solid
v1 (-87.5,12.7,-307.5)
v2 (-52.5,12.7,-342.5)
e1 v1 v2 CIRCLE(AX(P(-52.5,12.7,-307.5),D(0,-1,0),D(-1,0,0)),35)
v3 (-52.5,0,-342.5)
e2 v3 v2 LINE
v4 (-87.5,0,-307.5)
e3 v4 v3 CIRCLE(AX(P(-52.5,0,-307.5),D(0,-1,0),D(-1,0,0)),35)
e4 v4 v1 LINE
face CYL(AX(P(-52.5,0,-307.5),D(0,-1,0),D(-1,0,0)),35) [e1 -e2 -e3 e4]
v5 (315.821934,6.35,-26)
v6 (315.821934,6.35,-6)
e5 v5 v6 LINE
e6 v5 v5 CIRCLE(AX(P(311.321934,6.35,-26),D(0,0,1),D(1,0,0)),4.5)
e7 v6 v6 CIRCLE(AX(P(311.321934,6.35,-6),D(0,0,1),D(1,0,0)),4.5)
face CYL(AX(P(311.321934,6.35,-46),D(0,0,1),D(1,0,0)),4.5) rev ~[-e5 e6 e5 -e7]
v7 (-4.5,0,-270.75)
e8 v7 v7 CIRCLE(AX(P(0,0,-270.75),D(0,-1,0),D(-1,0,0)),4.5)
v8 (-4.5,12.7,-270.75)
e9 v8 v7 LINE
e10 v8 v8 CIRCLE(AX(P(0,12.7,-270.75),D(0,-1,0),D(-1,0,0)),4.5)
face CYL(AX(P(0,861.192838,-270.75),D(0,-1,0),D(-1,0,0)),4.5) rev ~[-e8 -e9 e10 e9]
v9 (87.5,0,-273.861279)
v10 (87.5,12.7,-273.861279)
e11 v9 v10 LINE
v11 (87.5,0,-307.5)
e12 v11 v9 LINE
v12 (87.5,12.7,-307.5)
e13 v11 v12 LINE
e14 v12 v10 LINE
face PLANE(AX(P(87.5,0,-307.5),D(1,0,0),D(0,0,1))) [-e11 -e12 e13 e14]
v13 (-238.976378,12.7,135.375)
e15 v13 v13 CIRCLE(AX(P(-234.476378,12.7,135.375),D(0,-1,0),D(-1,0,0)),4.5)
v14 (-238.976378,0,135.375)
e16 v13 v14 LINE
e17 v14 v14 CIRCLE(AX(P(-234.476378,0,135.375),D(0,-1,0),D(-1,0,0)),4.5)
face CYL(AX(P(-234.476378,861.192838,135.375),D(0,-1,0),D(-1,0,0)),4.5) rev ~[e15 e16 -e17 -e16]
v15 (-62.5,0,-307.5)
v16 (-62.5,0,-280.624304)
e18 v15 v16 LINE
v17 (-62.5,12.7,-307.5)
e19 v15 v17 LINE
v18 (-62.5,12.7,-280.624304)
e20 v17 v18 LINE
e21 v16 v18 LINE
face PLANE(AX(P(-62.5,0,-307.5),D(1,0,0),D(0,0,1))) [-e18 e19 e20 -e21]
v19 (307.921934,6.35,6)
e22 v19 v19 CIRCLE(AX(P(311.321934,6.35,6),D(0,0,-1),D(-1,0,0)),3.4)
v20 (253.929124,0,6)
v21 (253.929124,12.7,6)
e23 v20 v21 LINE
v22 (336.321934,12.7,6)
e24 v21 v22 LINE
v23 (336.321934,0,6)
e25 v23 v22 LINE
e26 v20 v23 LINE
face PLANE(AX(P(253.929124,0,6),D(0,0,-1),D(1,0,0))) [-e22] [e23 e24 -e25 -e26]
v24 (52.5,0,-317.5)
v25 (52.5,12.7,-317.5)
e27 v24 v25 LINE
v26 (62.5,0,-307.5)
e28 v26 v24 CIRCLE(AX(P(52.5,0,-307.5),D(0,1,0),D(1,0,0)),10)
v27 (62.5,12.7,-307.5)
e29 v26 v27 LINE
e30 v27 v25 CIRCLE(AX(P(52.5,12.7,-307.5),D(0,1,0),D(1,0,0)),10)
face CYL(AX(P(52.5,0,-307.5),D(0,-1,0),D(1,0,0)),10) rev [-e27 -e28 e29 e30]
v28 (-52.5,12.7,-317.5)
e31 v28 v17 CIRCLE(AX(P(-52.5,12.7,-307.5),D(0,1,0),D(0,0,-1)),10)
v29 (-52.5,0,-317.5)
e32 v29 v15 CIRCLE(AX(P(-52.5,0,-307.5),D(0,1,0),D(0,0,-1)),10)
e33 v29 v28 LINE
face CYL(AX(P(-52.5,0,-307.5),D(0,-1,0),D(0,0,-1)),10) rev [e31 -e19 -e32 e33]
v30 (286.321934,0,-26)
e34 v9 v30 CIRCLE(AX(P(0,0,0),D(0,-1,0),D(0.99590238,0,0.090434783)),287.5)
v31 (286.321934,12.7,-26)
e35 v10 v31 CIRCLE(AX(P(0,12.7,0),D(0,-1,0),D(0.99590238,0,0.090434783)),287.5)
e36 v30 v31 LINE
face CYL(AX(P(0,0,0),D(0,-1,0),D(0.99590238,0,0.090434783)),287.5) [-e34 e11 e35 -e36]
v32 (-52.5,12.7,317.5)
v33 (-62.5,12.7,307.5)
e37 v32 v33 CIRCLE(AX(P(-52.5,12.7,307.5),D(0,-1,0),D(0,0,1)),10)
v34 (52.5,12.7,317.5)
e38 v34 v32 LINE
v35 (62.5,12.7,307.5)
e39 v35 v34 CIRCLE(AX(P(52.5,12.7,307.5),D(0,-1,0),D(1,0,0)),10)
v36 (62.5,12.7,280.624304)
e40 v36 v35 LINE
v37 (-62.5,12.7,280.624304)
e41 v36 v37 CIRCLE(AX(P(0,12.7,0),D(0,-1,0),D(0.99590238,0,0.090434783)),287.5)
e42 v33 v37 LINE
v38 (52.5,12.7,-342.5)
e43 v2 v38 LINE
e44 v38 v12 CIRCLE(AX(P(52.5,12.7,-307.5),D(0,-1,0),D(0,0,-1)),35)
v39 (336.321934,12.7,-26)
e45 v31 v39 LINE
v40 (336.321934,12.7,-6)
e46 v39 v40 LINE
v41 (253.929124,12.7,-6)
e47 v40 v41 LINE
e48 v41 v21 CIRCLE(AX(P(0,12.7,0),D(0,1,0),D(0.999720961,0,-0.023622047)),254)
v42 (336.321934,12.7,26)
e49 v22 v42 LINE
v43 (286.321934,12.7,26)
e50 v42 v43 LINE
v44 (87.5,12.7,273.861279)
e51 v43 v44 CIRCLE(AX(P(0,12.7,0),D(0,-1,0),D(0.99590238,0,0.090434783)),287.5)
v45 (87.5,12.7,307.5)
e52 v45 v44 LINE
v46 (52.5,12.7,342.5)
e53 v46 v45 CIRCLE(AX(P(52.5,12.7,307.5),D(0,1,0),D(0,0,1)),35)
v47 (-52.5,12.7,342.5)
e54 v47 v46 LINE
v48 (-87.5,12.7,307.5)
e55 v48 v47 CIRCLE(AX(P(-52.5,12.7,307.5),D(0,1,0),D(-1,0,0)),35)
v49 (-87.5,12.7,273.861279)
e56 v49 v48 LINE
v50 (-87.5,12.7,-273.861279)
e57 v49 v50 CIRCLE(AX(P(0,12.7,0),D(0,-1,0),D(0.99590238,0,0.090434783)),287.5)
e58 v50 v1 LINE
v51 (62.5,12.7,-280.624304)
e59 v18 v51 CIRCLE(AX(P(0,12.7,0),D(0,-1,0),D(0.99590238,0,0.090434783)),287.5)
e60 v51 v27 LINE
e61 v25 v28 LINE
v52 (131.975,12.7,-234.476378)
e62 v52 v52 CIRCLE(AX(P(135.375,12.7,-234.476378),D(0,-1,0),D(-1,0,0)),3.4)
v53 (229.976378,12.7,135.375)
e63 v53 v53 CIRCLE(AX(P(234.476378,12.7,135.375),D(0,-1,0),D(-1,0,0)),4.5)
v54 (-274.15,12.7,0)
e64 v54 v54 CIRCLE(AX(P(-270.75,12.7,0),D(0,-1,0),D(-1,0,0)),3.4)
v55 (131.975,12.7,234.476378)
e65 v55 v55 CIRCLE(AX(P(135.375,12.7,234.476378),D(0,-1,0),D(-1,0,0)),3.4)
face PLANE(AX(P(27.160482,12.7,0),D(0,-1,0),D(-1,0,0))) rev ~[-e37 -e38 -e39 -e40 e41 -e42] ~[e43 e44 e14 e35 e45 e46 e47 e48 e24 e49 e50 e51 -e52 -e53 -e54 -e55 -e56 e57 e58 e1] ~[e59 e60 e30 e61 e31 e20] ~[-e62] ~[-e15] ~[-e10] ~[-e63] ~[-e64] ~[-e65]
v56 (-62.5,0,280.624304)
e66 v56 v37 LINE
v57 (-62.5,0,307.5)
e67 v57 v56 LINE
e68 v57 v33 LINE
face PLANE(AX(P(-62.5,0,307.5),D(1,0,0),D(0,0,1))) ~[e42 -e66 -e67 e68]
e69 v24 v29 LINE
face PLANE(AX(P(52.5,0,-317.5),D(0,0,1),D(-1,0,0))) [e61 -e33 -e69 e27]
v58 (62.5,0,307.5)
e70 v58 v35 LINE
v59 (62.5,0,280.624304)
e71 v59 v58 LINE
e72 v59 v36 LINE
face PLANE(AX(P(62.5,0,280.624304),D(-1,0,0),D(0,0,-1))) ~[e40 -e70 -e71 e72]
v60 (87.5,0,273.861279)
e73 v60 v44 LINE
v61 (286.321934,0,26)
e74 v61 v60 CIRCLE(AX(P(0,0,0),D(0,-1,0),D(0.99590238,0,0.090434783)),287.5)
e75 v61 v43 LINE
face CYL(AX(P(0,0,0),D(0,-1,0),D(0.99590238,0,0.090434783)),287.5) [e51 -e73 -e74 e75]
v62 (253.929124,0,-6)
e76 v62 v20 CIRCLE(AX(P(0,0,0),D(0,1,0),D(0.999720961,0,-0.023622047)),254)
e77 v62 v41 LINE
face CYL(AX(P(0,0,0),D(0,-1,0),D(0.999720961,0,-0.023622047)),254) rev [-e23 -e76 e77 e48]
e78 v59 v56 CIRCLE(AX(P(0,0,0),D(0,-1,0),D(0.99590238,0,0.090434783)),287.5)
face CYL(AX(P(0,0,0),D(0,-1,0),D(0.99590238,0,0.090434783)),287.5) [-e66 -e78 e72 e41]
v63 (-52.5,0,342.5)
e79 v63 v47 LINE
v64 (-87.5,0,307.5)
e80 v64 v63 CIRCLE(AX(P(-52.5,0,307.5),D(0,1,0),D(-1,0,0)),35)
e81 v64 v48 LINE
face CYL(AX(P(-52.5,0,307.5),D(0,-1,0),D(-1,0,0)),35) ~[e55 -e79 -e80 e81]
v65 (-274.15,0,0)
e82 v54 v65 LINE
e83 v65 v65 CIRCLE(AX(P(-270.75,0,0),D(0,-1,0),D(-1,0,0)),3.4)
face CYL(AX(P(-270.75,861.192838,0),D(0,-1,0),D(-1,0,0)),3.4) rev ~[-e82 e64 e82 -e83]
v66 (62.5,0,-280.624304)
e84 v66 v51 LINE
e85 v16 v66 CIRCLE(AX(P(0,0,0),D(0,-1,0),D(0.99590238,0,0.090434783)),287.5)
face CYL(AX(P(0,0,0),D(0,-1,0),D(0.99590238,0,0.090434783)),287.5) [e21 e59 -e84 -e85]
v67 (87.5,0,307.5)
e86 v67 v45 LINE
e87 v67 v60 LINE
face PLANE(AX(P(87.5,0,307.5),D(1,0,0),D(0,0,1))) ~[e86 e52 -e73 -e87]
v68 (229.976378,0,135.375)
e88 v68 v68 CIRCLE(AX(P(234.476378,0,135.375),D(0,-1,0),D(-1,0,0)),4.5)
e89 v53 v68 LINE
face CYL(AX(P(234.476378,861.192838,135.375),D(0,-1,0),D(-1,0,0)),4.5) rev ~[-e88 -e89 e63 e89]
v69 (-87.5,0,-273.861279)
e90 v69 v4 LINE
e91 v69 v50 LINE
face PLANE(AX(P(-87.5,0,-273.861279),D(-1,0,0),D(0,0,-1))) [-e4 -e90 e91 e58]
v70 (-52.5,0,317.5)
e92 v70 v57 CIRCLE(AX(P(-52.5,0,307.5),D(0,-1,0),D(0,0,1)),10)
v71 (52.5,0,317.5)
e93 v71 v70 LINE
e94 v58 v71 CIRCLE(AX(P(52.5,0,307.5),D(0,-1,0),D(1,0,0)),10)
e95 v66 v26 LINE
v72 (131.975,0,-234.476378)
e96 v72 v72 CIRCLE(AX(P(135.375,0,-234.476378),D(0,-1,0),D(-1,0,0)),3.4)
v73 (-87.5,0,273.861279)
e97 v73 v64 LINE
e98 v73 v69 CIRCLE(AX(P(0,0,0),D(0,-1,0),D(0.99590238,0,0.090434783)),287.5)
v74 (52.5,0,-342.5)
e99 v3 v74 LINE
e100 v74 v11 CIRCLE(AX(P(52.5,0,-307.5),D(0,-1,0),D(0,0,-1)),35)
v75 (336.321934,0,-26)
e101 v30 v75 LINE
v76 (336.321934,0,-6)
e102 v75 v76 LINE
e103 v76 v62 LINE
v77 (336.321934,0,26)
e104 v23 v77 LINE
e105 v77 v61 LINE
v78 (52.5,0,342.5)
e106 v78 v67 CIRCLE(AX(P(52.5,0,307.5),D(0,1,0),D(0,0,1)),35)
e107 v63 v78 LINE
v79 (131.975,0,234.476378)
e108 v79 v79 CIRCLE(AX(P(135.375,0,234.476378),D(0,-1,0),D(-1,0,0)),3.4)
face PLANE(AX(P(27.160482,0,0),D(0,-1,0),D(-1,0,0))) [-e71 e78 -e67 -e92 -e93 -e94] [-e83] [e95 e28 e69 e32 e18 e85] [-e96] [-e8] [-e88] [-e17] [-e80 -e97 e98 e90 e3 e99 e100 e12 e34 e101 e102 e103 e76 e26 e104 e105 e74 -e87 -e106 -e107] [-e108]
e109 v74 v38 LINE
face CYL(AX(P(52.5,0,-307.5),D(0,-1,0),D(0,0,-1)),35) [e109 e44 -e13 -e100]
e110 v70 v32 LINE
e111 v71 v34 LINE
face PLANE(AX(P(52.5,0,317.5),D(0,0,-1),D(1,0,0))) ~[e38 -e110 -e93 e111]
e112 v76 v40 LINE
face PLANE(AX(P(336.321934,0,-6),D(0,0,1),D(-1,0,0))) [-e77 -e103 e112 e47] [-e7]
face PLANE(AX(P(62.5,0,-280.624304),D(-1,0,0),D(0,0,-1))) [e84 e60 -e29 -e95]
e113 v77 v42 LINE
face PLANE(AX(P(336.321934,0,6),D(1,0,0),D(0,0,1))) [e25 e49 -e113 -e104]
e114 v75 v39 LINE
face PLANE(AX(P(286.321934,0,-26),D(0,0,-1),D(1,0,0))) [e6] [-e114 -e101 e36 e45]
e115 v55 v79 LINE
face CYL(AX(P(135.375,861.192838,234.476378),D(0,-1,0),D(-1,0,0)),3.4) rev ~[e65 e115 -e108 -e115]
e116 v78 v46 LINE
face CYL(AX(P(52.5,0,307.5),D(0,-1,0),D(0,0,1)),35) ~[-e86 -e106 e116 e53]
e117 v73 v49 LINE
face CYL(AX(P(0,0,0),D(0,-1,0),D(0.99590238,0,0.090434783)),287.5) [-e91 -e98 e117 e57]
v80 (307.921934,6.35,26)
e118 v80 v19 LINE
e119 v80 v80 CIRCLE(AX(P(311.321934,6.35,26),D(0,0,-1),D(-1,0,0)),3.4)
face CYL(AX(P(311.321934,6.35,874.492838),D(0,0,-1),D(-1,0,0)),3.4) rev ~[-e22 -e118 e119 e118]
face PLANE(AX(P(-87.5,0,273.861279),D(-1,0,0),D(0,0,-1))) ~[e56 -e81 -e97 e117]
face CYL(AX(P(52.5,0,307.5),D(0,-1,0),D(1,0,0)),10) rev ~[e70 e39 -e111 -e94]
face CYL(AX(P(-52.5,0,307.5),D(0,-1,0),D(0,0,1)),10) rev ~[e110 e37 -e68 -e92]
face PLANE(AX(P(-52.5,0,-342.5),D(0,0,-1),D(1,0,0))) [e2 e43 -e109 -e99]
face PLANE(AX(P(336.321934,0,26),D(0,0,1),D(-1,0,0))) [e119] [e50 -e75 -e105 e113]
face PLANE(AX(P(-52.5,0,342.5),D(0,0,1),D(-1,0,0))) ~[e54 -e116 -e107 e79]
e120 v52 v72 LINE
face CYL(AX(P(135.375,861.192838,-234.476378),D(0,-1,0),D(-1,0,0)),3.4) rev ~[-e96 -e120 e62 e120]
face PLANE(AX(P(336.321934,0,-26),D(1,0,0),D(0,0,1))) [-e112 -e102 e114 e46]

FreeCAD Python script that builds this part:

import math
import FreeCAD as App
import Part
import Sketcher

doc = App.newDocument("Part")
body = doc.addObject("PartDesign::Body", "Body")

# Sketch on XZ plane
sketch1 = doc.addObject("Sketcher::SketchObject", "Sketch")
body.addObject(sketch1)
sketch1.AttachmentSupport = (doc.XZ_Plane, [""])
sketch1.MapMode = "FlatFace"
sketch1.addGeometry([
    Part.ArcOfCircle(Part.Circle(App.Vector(0, 0, 0), App.Vector(0, 0, 1), 254), math.radians(1), math.radians(359)),  # 0
    Part.LineSegment(App.Vector(254, -6, 0), App.Vector(336, -6, 0)),  # 1
    Part.LineSegment(App.Vector(336, -6, 0), App.Vector(336, -26, 0)),  # 2
    Part.LineSegment(App.Vector(336, -26, 0), App.Vector(286, -26, 0)),  # 3
    Part.ArcOfCircle(Part.Circle(App.Vector(0, 0, 0), App.Vector(0, 0, 1), 288), math.radians(5), math.radians(355)),  # 4
    Part.LineSegment(App.Vector(286, 26, 0), App.Vector(336, 26, 0)),  # 5
    Part.LineSegment(App.Vector(336, 26, 0), App.Vector(336, 6, 0)),  # 6
    Part.LineSegment(App.Vector(336, 6, 0), App.Vector(254, 6, 0)),  # 7
], False)
sketch1.addConstraint([
    Sketcher.Constraint("Coincident", 0, 2, 1, 1),
    Sketcher.Constraint("Coincident", 1, 2, 2, 1),
    Sketcher.Constraint("Coincident", 2, 2, 3, 1),
    Sketcher.Constraint("Coincident", 3, 2, 4, 2),
    Sketcher.Constraint("Coincident", 4, 1, 5, 1),
    Sketcher.Constraint("Coincident", 5, 2, 6, 1),
    Sketcher.Constraint("Coincident", 6, 2, 7, 1),
    Sketcher.Constraint("Coincident", 7, 2, 0, 1),
    Sketcher.Constraint("Horizontal", 1),
    Sketcher.Constraint("Vertical", 2),
    Sketcher.Constraint("Horizontal", 3),
    Sketcher.Constraint("Horizontal", 5),
    Sketcher.Constraint("Vertical", 6),
    Sketcher.Constraint("Horizontal", 7),
    Sketcher.Constraint("Coincident", 0, 3, -1, 1),
    Sketcher.Constraint("Coincident", 4, 3, -1, 1),
    Sketcher.Constraint("Symmetric", 2, 2, 5, 2, -1),
    Sketcher.Constraint("Vertical", 0, 2, 7, 2),
    Sketcher.Constraint("Radius", 0, 254.0),
    Sketcher.Constraint("Radius", 4, 287.5),
    Sketcher.Constraint("DistanceX", 3, 2, 3, 1, 50.0),
    Sketcher.Constraint("DistanceY", 2, 2, 2, 1, 20.0),
    Sketcher.Constraint("DistanceY", 1, 2, -1, 1, 6.0),
])
pad1 = doc.addObject("PartDesign::Pad", "Pad")
body.addObject(pad1)
pad1.Profile = sketch1
pad1.Length = 12.7
pad1.Reversed = True

# Sketch on XZ plane
sketch2 = doc.addObject("Sketcher::SketchObject", "Sketch001")
body.addObject(sketch2)
sketch2.AttachmentSupport = (doc.XZ_Plane, [""])
sketch2.MapMode = "FlatFace"
sketch2.AttachmentOffset = App.Placement(App.Vector(0, 0, -12.7), App.Rotation())
sketch2.addGeometry([
    Part.Circle(App.Vector(135.4, 234.5, 0), App.Vector(0, 0, 1), 3.4),
    Part.Circle(App.Vector(-270.8, 0, 0), App.Vector(0, 0, 1), 3.4),
    Part.Circle(App.Vector(135.4, -234.5, 0), App.Vector(0, 0, 1), 3.4),
], False)
sketch2.addConstraint([
    Sketcher.Constraint("Equal", 0, 1),
    Sketcher.Constraint("Equal", 1, 2),
    Sketcher.Constraint("Symmetric", 0, 3, 2, 3, -1),
    Sketcher.Constraint("PointOnObject", 1, 3, -1),
    Sketcher.Constraint("Diameter", 0, 6.8),
    Sketcher.Constraint("DistanceX", 1, 3, -1, 1, 270.75),
    Sketcher.Constraint("DistanceX", -1, 1, 0, 3, 135.375),
    Sketcher.Constraint("DistanceY", -1, 1, 0, 3, 234.476378),
])
doc.recompute()
hole = doc.addObject("PartDesign::Hole", "Hole")
body.addObject(hole)
hole.Profile = sketch2
hole.ThreadType = "None"
hole.Diameter = 6.8
hole.DepthType = "ThroughAll"
hole.Reversed = True

# Sketch on XZ plane
sketch3 = doc.addObject("Sketcher::SketchObject", "Sketch002")
body.addObject(sketch3)
sketch3.AttachmentSupport = (doc.XZ_Plane, [""])
sketch3.MapMode = "FlatFace"
sketch3.AttachmentOffset = App.Placement(App.Vector(0, 0, -12.7), App.Rotation())
sketch3.addGeometry([
    Part.Circle(App.Vector(0, -270.8, 0), App.Vector(0, 0, 1), 4.5),
    Part.Circle(App.Vector(234.5, 135.4, 0), App.Vector(0, 0, 1), 4.5),
    Part.Circle(App.Vector(-234.5, 135.4, 0), App.Vector(0, 0, 1), 4.5),
], False)
sketch3.addConstraint([
    Sketcher.Constraint("Equal", 0, 1),
    Sketcher.Constraint("Equal", 1, 2),
    Sketcher.Constraint("Symmetric", 1, 3, 2, 3, -2),
    Sketcher.Constraint("PointOnObject", 0, 3, -2),
    Sketcher.Constraint("Diameter", 0, 9.0),
    Sketcher.Constraint("DistanceY", 0, 3, -1, 1, 270.75),
    Sketcher.Constraint("DistanceY", -1, 1, 1, 3, 135.375),
    Sketcher.Constraint("DistanceX", -1, 1, 1, 3, 234.476378),
])
doc.recompute()
hole2 = doc.addObject("PartDesign::Hole", "Hole001")
body.addObject(hole2)
hole2.Profile = sketch3
hole2.ThreadType = "None"
hole2.Diameter = 9
hole2.DepthType = "ThroughAll"
hole2.Reversed = True

# Sketch on XY plane
sketch4 = doc.addObject("Sketcher::SketchObject", "Sketch003")
body.addObject(sketch4)
sketch4.AttachmentSupport = (doc.XY_Plane, [""])
sketch4.MapMode = "FlatFace"
sketch4.AttachmentOffset = App.Placement(App.Vector(0, 0, -26), App.Rotation())
sketch4.addGeometry(Part.Circle(App.Vector(311.3, 6.3, 0), App.Vector(0, 0, 1), 4.5), False)
sketch4.addConstraint([
    Sketcher.Constraint("Diameter", 0, 9.0),
    Sketcher.Constraint("DistanceY", -1, 1, 0, 3, 6.35),
    Sketcher.Constraint("DistanceX", -1, 1, 0, 3, 311.321934),
])
doc.recompute()
hole3 = doc.addObject("PartDesign::Hole", "Hole002")
body.addObject(hole3)
hole3.Profile = sketch4
hole3.ThreadType = "None"
hole3.Diameter = 9
hole3.DepthType = "Dimension"
hole3.Depth = 20
hole3.DrillPoint = "Flat"
hole3.Reversed = True

# Sketch on XY plane
sketch5 = doc.addObject("Sketcher::SketchObject", "Sketch004")
body.addObject(sketch5)
sketch5.AttachmentSupport = (doc.XY_Plane, [""])
sketch5.MapMode = "FlatFace"
sketch5.AttachmentOffset = App.Placement(App.Vector(0, 0, 26), App.Rotation())
sketch5.addGeometry(Part.Circle(App.Vector(311.3, 6.3, 0), App.Vector(0, 0, 1), 3.4), False)
sketch5.addConstraint([
    Sketcher.Constraint("Diameter", 0, 6.8),
    Sketcher.Constraint("DistanceY", -1, 1, 0, 3, 6.35),
    Sketcher.Constraint("DistanceX", -1, 1, 0, 3, 311.321934),
])
doc.recompute()
hole4 = doc.addObject("PartDesign::Hole", "Hole003")
body.addObject(hole4)
hole4.Profile = sketch5
hole4.ThreadType = "None"
hole4.Diameter = 6.8
hole4.DepthType = "ThroughAll"

# Sketch on XZ plane
sketch6 = doc.addObject("Sketcher::SketchObject", "Sketch005")
body.addObject(sketch6)
sketch6.AttachmentSupport = (doc.XZ_Plane, [""])
sketch6.MapMode = "FlatFace"
sketch6.addGeometry([
    Part.LineSegment(App.Vector(52, -342, 0), App.Vector(-52, -342, 0)),  # 0
    Part.ArcOfCircle(Part.Circle(App.Vector(-53, -308, 0), App.Vector(0, 0, 1), 35), math.radians(180), math.radians(270)),  # 1
    Part.LineSegment(App.Vector(-88, -308, 0), App.Vector(-88, -274, 0)),  # 2
    Part.ArcOfCircle(Part.Circle(App.Vector(0, 0, 0), App.Vector(0, 0, 1), 288), math.radians(-107.72), math.radians(-102.56)),  # 3
    Part.LineSegment(App.Vector(-62, -281, 0), App.Vector(-62, -308, 0)),  # 4
    Part.ArcOfCircle(Part.Circle(App.Vector(-52, -308, 0), App.Vector(0, 0, 1), 10), math.radians(180), math.radians(270)),  # 5
    Part.LineSegment(App.Vector(-52, -318, 0), App.Vector(52, -318, 0)),  # 6
    Part.ArcOfCircle(Part.Circle(App.Vector(52, -308, 0), App.Vector(0, 0, 1), 10), math.radians(-90), math.radians(0)),  # 7
    Part.LineSegment(App.Vector(62, -308, 0), App.Vector(62, -281, 0)),  # 8
    Part.ArcOfCircle(Part.Circle(App.Vector(0, 0, 0), App.Vector(0, 0, 1), 288), math.radians(-77.44), math.radians(-72.28)),  # 9
    Part.LineSegment(App.Vector(88, -274, 0), App.Vector(88, -308, 0)),  # 10
    Part.ArcOfCircle(Part.Circle(App.Vector(53, -308, 0), App.Vector(0, 0, 1), 35), math.radians(-90), math.radians(0)),  # 11
], False)
sketch6.addConstraint([
    Sketcher.Constraint("Tangent", 0, 2, 1, 2),
    Sketcher.Constraint("Tangent", 1, 1, 2, 1),
    Sketcher.Constraint("Coincident", 2, 2, 3, 1),
    Sketcher.Constraint("Coincident", 3, 2, 4, 1),
    Sketcher.Constraint("Tangent", 4, 2, 5, 1),
    Sketcher.Constraint("Tangent", 5, 2, 6, 1),
    Sketcher.Constraint("Tangent", 6, 2, 7, 1),
    Sketcher.Constraint("Tangent", 7, 2, 8, 1),
    Sketcher.Constraint("Coincident", 8, 2, 9, 1),
    Sketcher.Constraint("Coincident", 9, 2, 10, 1),
    Sketcher.Constraint("Tangent", 10, 2, 11, 2),
    Sketcher.Constraint("Tangent", 11, 1, 0, 1),
    Sketcher.Constraint("Horizontal", 0),
    Sketcher.Constraint("Vertical", 2),
    Sketcher.Constraint("Vertical", 4),
    Sketcher.Constraint("Horizontal", 6),
    Sketcher.Constraint("Vertical", 8),
    Sketcher.Constraint("Vertical", 10),
    Sketcher.Constraint("Coincident", 3, 3, -1, 1),
    Sketcher.Constraint("Coincident", 9, 3, -1, 1),
    Sketcher.Constraint("Coincident", 5, 3, 1, 3),
    Sketcher.Constraint("Coincident", 11, 3, 7, 3),
    Sketcher.Constraint("Equal", 5, 7),
    Sketcher.Constraint("Equal", 3, 9),
    Sketcher.Constraint("Equal", 4, 8),
    Sketcher.Constraint("Radius", 1, 35.0),
    Sketcher.Constraint("Radius", 5, 10.0),
    Sketcher.Constraint("Radius", 3, 287.5),
    Sketcher.Constraint("DistanceX", 0, 2, 0, 1, 105.0),
    Sketcher.Constraint("DistanceY", 1, 3, -1, 1, 307.5),
])
pad2 = doc.addObject("PartDesign::Pad", "Pad001")
body.addObject(pad2)
pad2.Profile = sketch6
pad2.Length = 12.7
pad2.Reversed = True
doc.recompute()

mirrored = doc.addObject("PartDesign::Mirrored", "Mirrored")
body.addObject(mirrored)
mirrored.Originals = [pad2]
mirrored.MirrorPlane = (doc.XY_Plane, [""])
body.Tip = mirrored

doc.recompute()
